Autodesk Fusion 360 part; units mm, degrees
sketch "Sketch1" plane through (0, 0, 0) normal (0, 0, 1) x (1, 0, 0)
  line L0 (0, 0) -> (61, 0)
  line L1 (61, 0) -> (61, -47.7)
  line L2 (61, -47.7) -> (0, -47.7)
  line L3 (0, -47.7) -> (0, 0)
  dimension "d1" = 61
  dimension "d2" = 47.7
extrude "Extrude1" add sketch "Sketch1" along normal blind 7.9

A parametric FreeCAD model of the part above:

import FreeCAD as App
import Part
import Sketcher


def add_polygon(sketch, points):
    """Adds a closed chain of lines whose ends are joined by coincident constraints."""
    first, n = sketch.GeometryCount, len(points)
    for a, b in zip(points, points[1:] + points[:1]):
        sketch.addGeometry(Part.LineSegment(App.Vector(*a, 0), App.Vector(*b, 0)), False)
    for i in range(n):
        sketch.addConstraint(Sketcher.Constraint("Coincident", first + i, 2, first + (i + 1) % n, 1))

doc = App.newDocument("Part")
body = doc.addObject("PartDesign::Body", "Body")

# Sketch on XY plane
sketch1 = body.newObject("Sketcher::SketchObject", "Sketch")
sketch1.AttachmentSupport = (doc.getObject("XY_Plane"), [""])
sketch1.MapMode = "FlatFace"
add_polygon(sketch1, [(61, 0), (0, 0), (0, -48), (61, -48)])  # lines 0-3
sketch1.addConstraint([
    Sketcher.Constraint("Horizontal", 0),
    Sketcher.Constraint("Vertical", 1),
    Sketcher.Constraint("Horizontal", 2),
    Sketcher.Constraint("Vertical", 3),
    Sketcher.Constraint("Coincident", 0, 2, -1, 1),
    Sketcher.Constraint("DistanceX", 0, 2, 0, 1, 61.0),
    Sketcher.Constraint("DistanceY", 1, 2, 1, 1, 47.7),
])
pad1 = body.newObject("PartDesign::Pad", "Pad")
pad1.Profile = sketch1
pad1.Length = 7.9

doc.recompute()
